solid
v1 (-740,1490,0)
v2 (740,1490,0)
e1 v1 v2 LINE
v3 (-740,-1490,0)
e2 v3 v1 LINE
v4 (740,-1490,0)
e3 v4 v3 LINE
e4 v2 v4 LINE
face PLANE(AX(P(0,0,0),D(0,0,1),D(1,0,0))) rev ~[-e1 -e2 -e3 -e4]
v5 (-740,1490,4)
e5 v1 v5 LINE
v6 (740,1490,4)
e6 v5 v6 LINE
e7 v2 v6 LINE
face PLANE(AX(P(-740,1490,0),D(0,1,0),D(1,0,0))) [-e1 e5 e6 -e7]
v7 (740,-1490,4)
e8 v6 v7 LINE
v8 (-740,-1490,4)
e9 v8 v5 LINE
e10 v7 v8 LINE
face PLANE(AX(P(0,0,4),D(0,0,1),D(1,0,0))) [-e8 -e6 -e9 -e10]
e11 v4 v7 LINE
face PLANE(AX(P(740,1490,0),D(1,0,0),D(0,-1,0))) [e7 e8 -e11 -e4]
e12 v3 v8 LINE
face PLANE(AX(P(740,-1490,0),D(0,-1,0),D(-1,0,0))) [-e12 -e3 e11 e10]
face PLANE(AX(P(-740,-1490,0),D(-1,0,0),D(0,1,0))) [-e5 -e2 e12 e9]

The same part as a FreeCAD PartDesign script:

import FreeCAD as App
import Part
import Sketcher
Q = App.Units.Quantity

doc = App.newDocument("Part")
params = doc.addObject("Spreadsheet::Sheet", "Params")
for row, (alias, value) in enumerate([
    ("sketch1_width", "1480 mm"),
    ("sketch1_height", "2980 mm"),
    ("pad1_length", "4 mm"),
], start=1):
    params.set(f"A{row}", alias)
    params.set(f"B{row}", "=" + value)
    params.setAlias(f"B{row}", alias)

body = doc.addObject("PartDesign::Body", "Body")

sketch1 = body.newObject("Sketcher::SketchObject", "Sketch")
sketch1.AttachmentSupport = (doc.getObject("XY_Plane"), [""])
sketch1.MapMode = "FlatFace"
sketch1.addGeometry(Part.LineSegment(App.Vector(-740, -1490, 0), App.Vector(740, -1490, 0)), False)
sketch1.addGeometry(Part.LineSegment(App.Vector(740, -1490, 0), App.Vector(740, 1490, 0)), False)
sketch1.addGeometry(Part.LineSegment(App.Vector(740, 1490, 0), App.Vector(-740, 1490, 0)), False)
sketch1.addGeometry(Part.LineSegment(App.Vector(-740, 1490, 0), App.Vector(-740, -1490, 0)), False)
sketch1.addConstraint(Sketcher.Constraint("Coincident", 0, 2, 1, 1))
sketch1.addConstraint(Sketcher.Constraint("Coincident", 1, 2, 2, 1))
sketch1.addConstraint(Sketcher.Constraint("Coincident", 2, 2, 3, 1))
sketch1.addConstraint(Sketcher.Constraint("Coincident", 3, 2, 0, 1))
sketch1.addConstraint(Sketcher.Constraint("Horizontal", 0))
sketch1.addConstraint(Sketcher.Constraint("Vertical", 1))
sketch1.addConstraint(Sketcher.Constraint("Horizontal", 2))
sketch1.addConstraint(Sketcher.Constraint("Vertical", 3))
sketch1.addConstraint(Sketcher.Constraint("Symmetric", 0, 2, 2, 2, -1, 1))
sketch1.addConstraint(Sketcher.Constraint("DistanceX", 0, 1, 0, 2, Q("1480 mm")))
sketch1.addConstraint(Sketcher.Constraint("DistanceY", 1, 1, 1, 2, Q("2980 mm")))
sketch1.setExpression("Constraints[9]", "Params.sketch1_width")
sketch1.setExpression("Constraints[10]", "Params.sketch1_height")
pad1 = body.newObject("PartDesign::Pad", "Pad")
pad1.Profile = sketch1
pad1.setExpression("Length", "Params.pad1_length")

doc.recompute()
